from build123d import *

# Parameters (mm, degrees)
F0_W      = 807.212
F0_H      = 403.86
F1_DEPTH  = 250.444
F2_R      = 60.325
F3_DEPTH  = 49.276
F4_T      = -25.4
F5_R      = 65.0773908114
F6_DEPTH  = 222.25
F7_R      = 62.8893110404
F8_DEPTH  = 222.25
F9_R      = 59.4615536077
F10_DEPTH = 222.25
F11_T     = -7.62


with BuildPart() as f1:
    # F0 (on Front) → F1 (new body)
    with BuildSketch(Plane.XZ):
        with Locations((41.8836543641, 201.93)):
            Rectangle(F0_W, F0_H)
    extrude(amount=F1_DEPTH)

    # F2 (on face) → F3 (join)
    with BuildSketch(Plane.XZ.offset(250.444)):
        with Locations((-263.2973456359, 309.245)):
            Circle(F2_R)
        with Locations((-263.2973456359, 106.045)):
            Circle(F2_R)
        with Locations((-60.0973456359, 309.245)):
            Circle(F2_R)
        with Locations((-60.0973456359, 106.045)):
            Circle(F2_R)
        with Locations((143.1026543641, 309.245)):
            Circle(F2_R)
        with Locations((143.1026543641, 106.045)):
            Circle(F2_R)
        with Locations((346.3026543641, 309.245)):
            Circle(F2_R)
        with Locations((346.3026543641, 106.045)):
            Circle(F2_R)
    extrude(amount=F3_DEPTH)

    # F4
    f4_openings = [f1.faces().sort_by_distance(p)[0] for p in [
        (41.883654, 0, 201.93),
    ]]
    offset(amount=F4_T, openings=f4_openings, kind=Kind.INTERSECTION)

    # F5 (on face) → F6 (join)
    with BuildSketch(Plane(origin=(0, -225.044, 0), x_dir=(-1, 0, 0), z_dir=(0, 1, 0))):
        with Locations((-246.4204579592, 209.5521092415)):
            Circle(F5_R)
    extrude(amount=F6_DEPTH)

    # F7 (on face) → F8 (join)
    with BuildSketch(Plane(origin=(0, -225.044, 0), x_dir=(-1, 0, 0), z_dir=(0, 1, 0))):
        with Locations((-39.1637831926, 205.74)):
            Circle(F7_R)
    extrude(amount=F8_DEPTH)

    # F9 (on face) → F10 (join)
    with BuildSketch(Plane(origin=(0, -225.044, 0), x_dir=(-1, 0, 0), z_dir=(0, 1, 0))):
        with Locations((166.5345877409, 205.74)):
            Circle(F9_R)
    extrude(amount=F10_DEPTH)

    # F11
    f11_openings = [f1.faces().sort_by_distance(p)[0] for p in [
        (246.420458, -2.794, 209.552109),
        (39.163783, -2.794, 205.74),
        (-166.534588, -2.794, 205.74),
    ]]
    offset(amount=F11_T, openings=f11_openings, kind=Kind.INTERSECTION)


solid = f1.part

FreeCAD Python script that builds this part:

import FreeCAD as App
import Part
import Sketcher

V = App.Vector
Q = App.Units.Quantity


def faces_at(feature, points):
    """Names of the faces that lie closest to the given points."""
    faces = feature.Shape.Faces
    near = lambda p: min(range(len(faces)), key=lambda i: faces[i].distToShape(Part.Vertex(*p))[0])
    return sorted({f"Face{near(p) + 1}" for p in points})

doc = App.newDocument("Part")
params = doc.addObject("Spreadsheet::Sheet", "Params")
for row, (alias, value) in enumerate([
    ("sketch1_height", "15.9 in"),
    ("sketch1_width", "31.78 in"),
    ("pad1_length", "9.86 in"),
    ("sketch2_diameter", "4.75 in"),
    ("pad2_length", "1.94 in"),
    ("thickness_wall", "1 in"),
    ("pad3_length", "8.75 in"),
    ("pad4_length", "8.75 in"),
    ("pad5_length", "8.75 in"),
    ("thickness2_wall", "0.3 in"),
], start=1):
    params.set(f"A{row}", alias)
    params.set(f"B{row}", "=" + value)
    params.setAlias(f"B{row}", alias)

body = doc.addObject("PartDesign::Body", "Body")

sketch1 = body.newObject("Sketcher::SketchObject", "Sketch")
sketch1.AttachmentSupport = (doc.getObject("XZ_Plane"), [""])
sketch1.MapMode = "FlatFace"
sketch1.addGeometry(Part.LineSegment(V(-362, 404, 0), V(-362, 0, 0)), False)
sketch1.addGeometry(Part.LineSegment(V(-362, 0, 0), V(445, 0, 0)), False)
sketch1.addGeometry(Part.LineSegment(V(445, 0, 0), V(445, 404, 0)), False)
sketch1.addGeometry(Part.LineSegment(V(445, 404, 0), V(-362, 404, 0)), False)
sketch1.addConstraint(Sketcher.Constraint("Coincident", 0, 2, 1, 1))
sketch1.addConstraint(Sketcher.Constraint("Coincident", 1, 2, 2, 1))
sketch1.addConstraint(Sketcher.Constraint("Coincident", 2, 2, 3, 1))
sketch1.addConstraint(Sketcher.Constraint("Coincident", 3, 2, 0, 1))
sketch1.addConstraint(Sketcher.Constraint("Vertical", 0))
sketch1.addConstraint(Sketcher.Constraint("Horizontal", 1))
sketch1.addConstraint(Sketcher.Constraint("Vertical", 2))
sketch1.addConstraint(Sketcher.Constraint("Horizontal", 3))
sketch1.addConstraint(Sketcher.Constraint("PointOnObject", 0, 2, -1))
sketch1.addConstraint(Sketcher.Constraint("DistanceY", 0, 2, 0, 1, Q("15.9 in")))
sketch1.addConstraint(Sketcher.Constraint("DistanceX", 1, 1, 1, 2, Q("31.78 in")))
sketch1.addConstraint(Sketcher.Constraint("DistanceX", 0, 2, -1, 1, Q("361.722346 mm")))
sketch1.setExpression("Constraints[9]", "Params.sketch1_height")
sketch1.setExpression("Constraints[10]", "Params.sketch1_width")
pad1 = body.newObject("PartDesign::Pad", "Pad")
pad1.Profile = sketch1
pad1.setExpression("Length", "Params.pad1_length")

sketch2 = body.newObject("Sketcher::SketchObject", "Sketch001")
sketch2.AttachmentSupport = (doc.getObject("XZ_Plane"), [""])
sketch2.MapMode = "FlatFace"
sketch2.AttachmentOffset = App.Placement(V(0, 0, 9.86 * 25.4), App.Rotation())
sketch2.addGeometry(Part.Circle(V(-263, 309, 0), V(0, 0, 1), 60), False)
sketch2.addGeometry(Part.Circle(V(-263, 106, 0), V(0, 0, 1), 60), False)
sketch2.addGeometry(Part.Circle(V(-60, 309, 0), V(0, 0, 1), 60), False)
sketch2.addGeometry(Part.Circle(V(-60, 106, 0), V(0, 0, 1), 60), False)
sketch2.addGeometry(Part.Circle(V(143, 309, 0), V(0, 0, 1), 60), False)
sketch2.addGeometry(Part.Circle(V(143, 106, 0), V(0, 0, 1), 60), False)
sketch2.addGeometry(Part.Circle(V(346, 309, 0), V(0, 0, 1), 60), False)
sketch2.addGeometry(Part.Circle(V(346, 106, 0), V(0, 0, 1), 60), False)
sketch2.addConstraint(Sketcher.Constraint("Equal", 0, 1))
sketch2.addConstraint(Sketcher.Constraint("Equal", 1, 2))
sketch2.addConstraint(Sketcher.Constraint("Equal", 2, 3))
sketch2.addConstraint(Sketcher.Constraint("Equal", 3, 4))
sketch2.addConstraint(Sketcher.Constraint("Equal", 4, 5))
sketch2.addConstraint(Sketcher.Constraint("Equal", 5, 6))
sketch2.addConstraint(Sketcher.Constraint("Equal", 6, 7))
sketch2.addConstraint(Sketcher.Constraint("Horizontal", 0, 3, 2, 3))
sketch2.addConstraint(Sketcher.Constraint("Horizontal", 1, 3, 3, 3))
sketch2.addConstraint(Sketcher.Constraint("Horizontal", 2, 3, 4, 3))
sketch2.addConstraint(Sketcher.Constraint("Horizontal", 3, 3, 5, 3))
sketch2.addConstraint(Sketcher.Constraint("Horizontal", 4, 3, 6, 3))
sketch2.addConstraint(Sketcher.Constraint("Horizontal", 5, 3, 7, 3))
sketch2.addConstraint(Sketcher.Constraint("Vertical", 0, 3, 1, 3))
sketch2.addConstraint(Sketcher.Constraint("Vertical", 2, 3, 3, 3))
sketch2.addConstraint(Sketcher.Constraint("Vertical", 4, 3, 5, 3))
sketch2.addConstraint(Sketcher.Constraint("Vertical", 6, 3, 7, 3))
sketch2.addConstraint(Sketcher.Constraint("Diameter", 0, Q("4.75 in")))
sketch2.addConstraint(Sketcher.Constraint("DistanceY", 1, 3, 0, 3, Q("8 in")))
sketch2.addConstraint(Sketcher.Constraint("DistanceX", 0, 3, 2, 3, Q("8 in")))
sketch2.addConstraint(Sketcher.Constraint("DistanceX", 2, 3, 4, 3, Q("8 in")))
sketch2.addConstraint(Sketcher.Constraint("DistanceX", 4, 3, 6, 3, Q("8 in")))
sketch2.addConstraint(Sketcher.Constraint("DistanceY", -1, 1, 0, 3, Q("12.175 in")))
sketch2.addConstraint(Sketcher.Constraint("DistanceX", 0, 3, -1, 1, Q("263.297346 mm")))
sketch2.setExpression("Constraints[17]", "Params.sketch2_diameter")
pad2 = body.newObject("PartDesign::Pad", "Pad001")
pad2.Profile = sketch2
pad2.setExpression("Length", "Params.pad2_length")
doc.recompute()

thickness = body.newObject("PartDesign::Thickness", "Thickness")
thickness.Base = (pad2, faces_at(pad2, [(41.884, 0, 201.93)]))
thickness.setExpression("Value", "Params.thickness_wall")
thickness.Reversed = True
thickness.Join = "Intersection"

sketch3 = body.newObject("Sketcher::SketchObject", "Sketch002")
sketch3.AttachmentSupport = (doc.getObject("XZ_Plane"), [""])
sketch3.MapMode = "FlatFace"
sketch3.AttachmentOffset = App.Placement(V(0, 0, 8.86 * 25.4), App.Rotation())
sketch3.addGeometry(Part.Circle(V(246, 210, 0), V(0, 0, 1), 65), False)
sketch3.addConstraint(Sketcher.Constraint("Diameter", 0, Q("130.154782 mm")))
sketch3.addConstraint(Sketcher.Constraint("DistanceY", -1, 1, 0, 3, Q("209.552109 mm")))
sketch3.addConstraint(Sketcher.Constraint("DistanceX", -1, 1, 0, 3, Q("246.420458 mm")))
pad3 = body.newObject("PartDesign::Pad", "Pad002")
pad3.Profile = sketch3
pad3.setExpression("Length", "Params.pad3_length")
pad3.Reversed = True

sketch4 = body.newObject("Sketcher::SketchObject", "Sketch003")
sketch4.AttachmentSupport = (doc.getObject("XZ_Plane"), [""])
sketch4.MapMode = "FlatFace"
sketch4.AttachmentOffset = App.Placement(V(0, 0, 8.86 * 25.4), App.Rotation())
sketch4.addGeometry(Part.Circle(V(39, 206, 0), V(0, 0, 1), 63), False)
sketch4.addConstraint(Sketcher.Constraint("DistanceY", -1, 1, 0, 3, Q("8.1 in")))
sketch4.addConstraint(Sketcher.Constraint("Diameter", 0, Q("125.778622 mm")))
sketch4.addConstraint(Sketcher.Constraint("DistanceX", -1, 1, 0, 3, Q("39.163783 mm")))
pad4 = body.newObject("PartDesign::Pad", "Pad003")
pad4.Profile = sketch4
pad4.setExpression("Length", "Params.pad4_length")
pad4.Reversed = True

sketch5 = body.newObject("Sketcher::SketchObject", "Sketch004")
sketch5.AttachmentSupport = (doc.getObject("XZ_Plane"), [""])
sketch5.MapMode = "FlatFace"
sketch5.AttachmentOffset = App.Placement(V(0, 0, 8.86 * 25.4), App.Rotation())
sketch5.addGeometry(Part.Circle(V(-167, 206, 0), V(0, 0, 1), 59), False)
sketch5.addConstraint(Sketcher.Constraint("DistanceY", -1, 1, 0, 3, Q("8.1 in")))
sketch5.addConstraint(Sketcher.Constraint("Diameter", 0, Q("118.923107 mm")))
sketch5.addConstraint(Sketcher.Constraint("DistanceX", 0, 3, -1, 1, Q("166.534588 mm")))
pad5 = body.newObject("PartDesign::Pad", "Pad004")
pad5.Profile = sketch5
pad5.setExpression("Length", "Params.pad5_length")
pad5.Reversed = True
doc.recompute()

thickness2 = body.newObject("PartDesign::Thickness", "Thickness001")
thickness2.Base = (pad5, faces_at(pad5, [(246.42, -2.794, 209.552), (39.164, -2.794, 205.74), (-166.535, -2.794, 205.74)]))
thickness2.setExpression("Value", "Params.thickness2_wall")
thickness2.Reversed = True
thickness2.Join = "Intersection"

doc.recompute()
